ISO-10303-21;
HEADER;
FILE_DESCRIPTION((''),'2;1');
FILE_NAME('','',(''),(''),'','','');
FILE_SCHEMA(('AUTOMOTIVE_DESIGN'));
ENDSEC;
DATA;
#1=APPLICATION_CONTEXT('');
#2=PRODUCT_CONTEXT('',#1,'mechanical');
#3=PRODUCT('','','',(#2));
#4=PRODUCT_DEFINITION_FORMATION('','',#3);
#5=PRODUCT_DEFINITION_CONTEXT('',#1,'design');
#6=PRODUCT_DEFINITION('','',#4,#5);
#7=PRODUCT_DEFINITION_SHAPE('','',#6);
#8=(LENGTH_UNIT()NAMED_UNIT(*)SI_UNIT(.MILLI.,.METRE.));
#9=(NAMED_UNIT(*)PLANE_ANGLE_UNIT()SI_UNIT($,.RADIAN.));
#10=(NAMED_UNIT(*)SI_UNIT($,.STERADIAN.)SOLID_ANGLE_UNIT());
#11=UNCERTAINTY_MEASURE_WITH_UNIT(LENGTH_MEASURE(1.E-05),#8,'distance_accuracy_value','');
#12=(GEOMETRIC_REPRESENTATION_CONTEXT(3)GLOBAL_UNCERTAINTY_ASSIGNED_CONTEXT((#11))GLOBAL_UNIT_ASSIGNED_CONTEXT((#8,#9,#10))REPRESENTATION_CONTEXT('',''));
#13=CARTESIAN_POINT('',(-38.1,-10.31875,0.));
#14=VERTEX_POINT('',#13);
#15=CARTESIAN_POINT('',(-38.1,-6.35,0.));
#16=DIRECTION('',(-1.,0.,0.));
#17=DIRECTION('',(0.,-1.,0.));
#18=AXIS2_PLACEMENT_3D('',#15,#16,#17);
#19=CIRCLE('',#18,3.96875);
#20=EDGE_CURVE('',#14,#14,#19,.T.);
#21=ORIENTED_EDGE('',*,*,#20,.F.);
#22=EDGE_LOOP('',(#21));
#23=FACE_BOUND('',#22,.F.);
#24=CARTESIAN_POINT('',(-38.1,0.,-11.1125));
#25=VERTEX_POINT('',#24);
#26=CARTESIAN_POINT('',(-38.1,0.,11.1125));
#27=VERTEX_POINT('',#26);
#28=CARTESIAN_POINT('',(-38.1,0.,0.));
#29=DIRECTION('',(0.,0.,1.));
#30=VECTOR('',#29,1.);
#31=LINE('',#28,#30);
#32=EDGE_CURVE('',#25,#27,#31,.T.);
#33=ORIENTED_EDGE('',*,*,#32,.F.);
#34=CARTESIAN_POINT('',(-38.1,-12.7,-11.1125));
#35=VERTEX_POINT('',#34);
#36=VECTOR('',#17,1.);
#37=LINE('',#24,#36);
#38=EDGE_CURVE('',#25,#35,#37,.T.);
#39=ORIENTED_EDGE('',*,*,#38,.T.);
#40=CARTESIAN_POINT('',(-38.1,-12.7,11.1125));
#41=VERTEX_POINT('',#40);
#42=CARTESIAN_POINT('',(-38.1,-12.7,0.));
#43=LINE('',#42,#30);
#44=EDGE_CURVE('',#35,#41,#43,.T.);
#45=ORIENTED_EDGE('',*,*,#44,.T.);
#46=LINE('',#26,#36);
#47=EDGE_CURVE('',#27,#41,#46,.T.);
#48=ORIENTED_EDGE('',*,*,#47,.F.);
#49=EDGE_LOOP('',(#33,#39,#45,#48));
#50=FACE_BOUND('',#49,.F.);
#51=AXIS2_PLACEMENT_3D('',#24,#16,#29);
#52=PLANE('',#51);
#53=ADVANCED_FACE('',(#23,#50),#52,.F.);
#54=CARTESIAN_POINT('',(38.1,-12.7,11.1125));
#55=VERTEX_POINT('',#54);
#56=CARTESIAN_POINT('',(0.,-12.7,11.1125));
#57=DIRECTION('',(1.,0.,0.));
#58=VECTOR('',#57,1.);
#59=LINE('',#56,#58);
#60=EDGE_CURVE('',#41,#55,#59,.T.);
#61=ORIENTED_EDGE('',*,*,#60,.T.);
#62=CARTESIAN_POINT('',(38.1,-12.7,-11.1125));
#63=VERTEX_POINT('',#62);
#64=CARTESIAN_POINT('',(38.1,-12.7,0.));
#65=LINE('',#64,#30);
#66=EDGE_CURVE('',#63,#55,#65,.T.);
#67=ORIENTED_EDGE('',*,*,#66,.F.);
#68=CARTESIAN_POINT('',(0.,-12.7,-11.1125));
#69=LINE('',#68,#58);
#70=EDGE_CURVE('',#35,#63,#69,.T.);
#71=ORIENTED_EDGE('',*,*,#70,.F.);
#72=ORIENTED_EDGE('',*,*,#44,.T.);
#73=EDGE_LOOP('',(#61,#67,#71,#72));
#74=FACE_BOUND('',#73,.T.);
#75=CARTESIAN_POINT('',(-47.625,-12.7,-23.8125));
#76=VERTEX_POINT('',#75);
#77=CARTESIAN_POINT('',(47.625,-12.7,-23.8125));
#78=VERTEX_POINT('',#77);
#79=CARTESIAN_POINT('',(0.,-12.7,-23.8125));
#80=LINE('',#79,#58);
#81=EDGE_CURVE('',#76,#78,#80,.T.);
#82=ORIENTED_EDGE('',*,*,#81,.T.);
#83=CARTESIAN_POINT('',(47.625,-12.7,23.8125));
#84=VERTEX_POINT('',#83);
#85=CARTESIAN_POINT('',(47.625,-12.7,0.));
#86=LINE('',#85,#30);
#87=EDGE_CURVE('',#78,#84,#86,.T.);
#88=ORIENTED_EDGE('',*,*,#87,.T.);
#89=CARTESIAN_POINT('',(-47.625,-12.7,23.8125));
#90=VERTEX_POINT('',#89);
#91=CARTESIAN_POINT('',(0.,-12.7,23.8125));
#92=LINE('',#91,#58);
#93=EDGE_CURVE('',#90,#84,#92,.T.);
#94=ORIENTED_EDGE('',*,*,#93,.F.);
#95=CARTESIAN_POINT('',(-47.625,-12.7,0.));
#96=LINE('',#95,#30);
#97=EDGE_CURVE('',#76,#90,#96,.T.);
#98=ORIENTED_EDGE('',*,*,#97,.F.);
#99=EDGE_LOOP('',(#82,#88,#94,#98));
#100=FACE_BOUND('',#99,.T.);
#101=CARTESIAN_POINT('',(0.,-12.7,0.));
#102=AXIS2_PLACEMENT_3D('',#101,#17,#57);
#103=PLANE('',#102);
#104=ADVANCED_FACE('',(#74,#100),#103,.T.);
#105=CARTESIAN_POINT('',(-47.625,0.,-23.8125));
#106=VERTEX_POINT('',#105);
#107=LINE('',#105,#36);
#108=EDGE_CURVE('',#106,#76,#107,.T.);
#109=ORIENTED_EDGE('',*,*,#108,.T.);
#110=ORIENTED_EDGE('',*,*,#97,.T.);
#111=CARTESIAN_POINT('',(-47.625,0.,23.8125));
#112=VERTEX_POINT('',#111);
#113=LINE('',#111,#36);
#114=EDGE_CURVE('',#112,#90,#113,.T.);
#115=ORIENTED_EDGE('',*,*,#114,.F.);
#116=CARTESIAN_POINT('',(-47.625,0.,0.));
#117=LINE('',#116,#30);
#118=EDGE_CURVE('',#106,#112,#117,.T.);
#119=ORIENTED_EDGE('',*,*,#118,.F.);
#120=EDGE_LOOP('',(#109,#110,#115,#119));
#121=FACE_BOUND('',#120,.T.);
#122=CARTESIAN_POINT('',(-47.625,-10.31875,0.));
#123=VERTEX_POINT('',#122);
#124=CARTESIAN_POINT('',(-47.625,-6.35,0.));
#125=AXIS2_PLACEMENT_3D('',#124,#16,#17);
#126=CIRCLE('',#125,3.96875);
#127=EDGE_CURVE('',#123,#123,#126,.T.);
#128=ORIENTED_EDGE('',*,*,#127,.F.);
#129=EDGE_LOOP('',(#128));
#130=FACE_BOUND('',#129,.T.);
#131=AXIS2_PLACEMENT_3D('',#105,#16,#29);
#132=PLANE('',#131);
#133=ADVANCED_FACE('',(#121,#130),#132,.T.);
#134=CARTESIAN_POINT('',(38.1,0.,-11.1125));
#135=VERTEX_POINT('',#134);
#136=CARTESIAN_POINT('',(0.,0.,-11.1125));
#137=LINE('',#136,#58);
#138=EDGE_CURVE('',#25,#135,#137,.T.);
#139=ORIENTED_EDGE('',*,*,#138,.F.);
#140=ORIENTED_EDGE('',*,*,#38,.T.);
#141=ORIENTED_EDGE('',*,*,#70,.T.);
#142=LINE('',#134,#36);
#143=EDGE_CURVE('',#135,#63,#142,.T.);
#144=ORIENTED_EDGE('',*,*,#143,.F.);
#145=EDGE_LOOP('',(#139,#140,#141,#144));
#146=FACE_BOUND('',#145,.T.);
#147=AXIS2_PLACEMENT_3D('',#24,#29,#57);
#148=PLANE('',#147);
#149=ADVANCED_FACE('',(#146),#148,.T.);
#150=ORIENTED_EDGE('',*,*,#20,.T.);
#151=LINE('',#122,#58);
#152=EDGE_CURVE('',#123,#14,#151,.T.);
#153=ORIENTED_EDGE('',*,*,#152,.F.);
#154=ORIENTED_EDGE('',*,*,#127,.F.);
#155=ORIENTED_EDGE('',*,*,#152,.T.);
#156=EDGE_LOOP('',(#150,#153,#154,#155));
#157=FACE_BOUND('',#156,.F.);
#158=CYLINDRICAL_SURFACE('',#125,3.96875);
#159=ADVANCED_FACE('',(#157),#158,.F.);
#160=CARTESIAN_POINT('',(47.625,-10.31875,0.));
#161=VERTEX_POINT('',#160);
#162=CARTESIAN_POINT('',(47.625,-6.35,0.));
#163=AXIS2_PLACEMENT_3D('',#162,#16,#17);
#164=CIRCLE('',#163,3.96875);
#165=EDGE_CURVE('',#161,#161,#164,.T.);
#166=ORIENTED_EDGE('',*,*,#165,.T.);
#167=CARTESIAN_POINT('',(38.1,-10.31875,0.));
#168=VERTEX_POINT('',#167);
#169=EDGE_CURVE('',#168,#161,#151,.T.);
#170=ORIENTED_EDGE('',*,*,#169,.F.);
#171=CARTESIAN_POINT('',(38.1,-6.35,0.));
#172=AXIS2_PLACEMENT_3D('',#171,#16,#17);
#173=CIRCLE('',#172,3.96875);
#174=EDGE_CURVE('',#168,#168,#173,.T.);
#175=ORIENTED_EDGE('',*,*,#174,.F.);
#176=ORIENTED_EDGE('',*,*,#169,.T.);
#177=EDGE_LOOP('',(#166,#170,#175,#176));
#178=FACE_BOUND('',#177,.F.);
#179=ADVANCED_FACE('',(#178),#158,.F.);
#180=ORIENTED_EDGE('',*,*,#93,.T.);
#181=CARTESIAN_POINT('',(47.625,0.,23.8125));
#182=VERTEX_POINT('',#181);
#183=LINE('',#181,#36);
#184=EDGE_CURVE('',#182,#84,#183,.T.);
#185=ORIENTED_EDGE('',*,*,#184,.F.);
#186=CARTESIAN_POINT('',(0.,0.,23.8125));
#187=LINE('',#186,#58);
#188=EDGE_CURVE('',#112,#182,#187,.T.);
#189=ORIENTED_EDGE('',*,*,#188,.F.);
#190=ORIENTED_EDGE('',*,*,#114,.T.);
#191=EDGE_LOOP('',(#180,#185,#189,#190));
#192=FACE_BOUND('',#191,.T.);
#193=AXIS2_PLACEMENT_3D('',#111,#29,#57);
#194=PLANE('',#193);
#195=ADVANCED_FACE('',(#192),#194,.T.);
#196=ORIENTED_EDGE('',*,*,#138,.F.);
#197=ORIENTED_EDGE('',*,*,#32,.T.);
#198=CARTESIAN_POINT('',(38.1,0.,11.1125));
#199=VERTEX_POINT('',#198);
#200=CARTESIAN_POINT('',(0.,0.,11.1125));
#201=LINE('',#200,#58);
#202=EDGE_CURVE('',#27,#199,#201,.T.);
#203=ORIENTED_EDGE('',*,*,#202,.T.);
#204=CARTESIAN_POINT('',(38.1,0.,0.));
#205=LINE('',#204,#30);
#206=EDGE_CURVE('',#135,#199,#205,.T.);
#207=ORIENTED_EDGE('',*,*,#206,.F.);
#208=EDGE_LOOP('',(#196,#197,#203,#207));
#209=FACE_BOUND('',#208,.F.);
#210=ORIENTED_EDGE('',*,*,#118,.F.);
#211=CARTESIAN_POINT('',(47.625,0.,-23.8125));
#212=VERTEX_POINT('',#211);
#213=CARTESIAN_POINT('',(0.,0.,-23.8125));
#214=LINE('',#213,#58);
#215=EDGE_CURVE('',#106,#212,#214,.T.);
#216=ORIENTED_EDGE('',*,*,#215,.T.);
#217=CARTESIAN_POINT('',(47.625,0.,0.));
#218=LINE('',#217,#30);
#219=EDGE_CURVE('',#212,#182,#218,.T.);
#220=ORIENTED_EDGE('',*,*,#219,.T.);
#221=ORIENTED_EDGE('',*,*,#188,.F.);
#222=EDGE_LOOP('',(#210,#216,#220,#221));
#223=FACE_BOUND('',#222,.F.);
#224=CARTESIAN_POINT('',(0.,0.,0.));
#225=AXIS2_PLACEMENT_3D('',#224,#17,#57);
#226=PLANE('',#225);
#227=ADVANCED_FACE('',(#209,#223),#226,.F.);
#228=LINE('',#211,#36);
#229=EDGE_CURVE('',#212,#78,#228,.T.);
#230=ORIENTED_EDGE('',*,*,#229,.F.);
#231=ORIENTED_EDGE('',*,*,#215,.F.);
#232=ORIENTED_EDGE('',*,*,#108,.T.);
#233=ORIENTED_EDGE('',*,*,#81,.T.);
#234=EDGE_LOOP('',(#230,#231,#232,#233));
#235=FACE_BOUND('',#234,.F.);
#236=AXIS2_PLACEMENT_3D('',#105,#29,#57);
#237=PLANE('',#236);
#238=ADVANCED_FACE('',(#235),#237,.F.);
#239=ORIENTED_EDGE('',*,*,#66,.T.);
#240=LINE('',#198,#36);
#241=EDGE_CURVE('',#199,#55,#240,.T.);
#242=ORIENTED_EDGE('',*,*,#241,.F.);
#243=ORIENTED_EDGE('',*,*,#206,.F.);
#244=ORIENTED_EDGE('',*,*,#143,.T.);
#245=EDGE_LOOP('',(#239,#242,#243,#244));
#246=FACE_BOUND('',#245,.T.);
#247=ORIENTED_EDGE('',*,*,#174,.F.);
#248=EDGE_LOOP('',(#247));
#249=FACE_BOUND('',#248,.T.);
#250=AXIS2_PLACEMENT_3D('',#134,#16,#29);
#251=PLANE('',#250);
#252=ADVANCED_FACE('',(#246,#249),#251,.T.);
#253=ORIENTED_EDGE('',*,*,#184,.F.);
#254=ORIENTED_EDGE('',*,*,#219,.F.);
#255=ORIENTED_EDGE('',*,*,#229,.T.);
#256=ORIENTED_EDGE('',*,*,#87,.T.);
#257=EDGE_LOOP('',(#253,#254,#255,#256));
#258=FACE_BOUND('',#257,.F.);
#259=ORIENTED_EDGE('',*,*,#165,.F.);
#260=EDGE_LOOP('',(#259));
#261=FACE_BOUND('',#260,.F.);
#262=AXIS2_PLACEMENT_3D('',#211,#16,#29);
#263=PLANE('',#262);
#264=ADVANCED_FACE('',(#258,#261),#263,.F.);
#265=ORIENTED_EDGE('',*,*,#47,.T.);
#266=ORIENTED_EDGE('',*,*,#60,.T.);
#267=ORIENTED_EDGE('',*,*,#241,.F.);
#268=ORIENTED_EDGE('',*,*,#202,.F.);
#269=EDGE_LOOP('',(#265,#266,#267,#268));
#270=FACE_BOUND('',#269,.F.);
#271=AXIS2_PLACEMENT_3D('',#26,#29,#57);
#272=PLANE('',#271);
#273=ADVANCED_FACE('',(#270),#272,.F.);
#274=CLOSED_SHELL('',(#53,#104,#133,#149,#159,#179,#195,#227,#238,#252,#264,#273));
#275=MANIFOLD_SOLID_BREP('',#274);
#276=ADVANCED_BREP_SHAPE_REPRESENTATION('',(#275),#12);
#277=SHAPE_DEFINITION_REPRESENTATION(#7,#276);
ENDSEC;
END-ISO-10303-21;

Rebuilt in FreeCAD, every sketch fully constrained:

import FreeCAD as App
import Part
import Sketcher
from FreeCAD import Vector
Q = App.Units.Quantity


def add_polygon(sketch, points):
    """Adds a closed chain of lines whose ends are joined by coincident constraints."""
    first, n = sketch.GeometryCount, len(points)
    for a, b in zip(points, points[1:] + points[:1]):
        sketch.addGeometry(Part.LineSegment(App.Vector(*a, 0), App.Vector(*b, 0)), False)
    for i in range(n):
        sketch.addConstraint(Sketcher.Constraint("Coincident", first + i, 2, first + (i + 1) % n, 1))

doc = App.newDocument("Part")
body = doc.addObject("PartDesign::Body", "Body")

sketch1 = body.newObject("Sketcher::SketchObject", "Sketch")
sketch1.AttachmentSupport = (doc.getObject("XZ_Plane"), [""])
sketch1.MapMode = "FlatFace"
add_polygon(sketch1, [(-47.625, 23.8125), (-47.625, -23.8125), (47.625, -23.8125), (47.625, 23.8125)])
add_polygon(sketch1, [(38.1, -11.1125), (-38.1, -11.1125), (-38.1, 11.1125), (38.1, 11.1125)])
sketch1.addConstraint([
    Sketcher.Constraint("Vertical", 0),
    Sketcher.Constraint("Horizontal", 1),
    Sketcher.Constraint("Vertical", 2),
    Sketcher.Constraint("Horizontal", 3),
    Sketcher.Constraint("Horizontal", 4),
    Sketcher.Constraint("Vertical", 5),
    Sketcher.Constraint("Horizontal", 6),
    Sketcher.Constraint("Vertical", 7),
    Sketcher.Constraint("Symmetric", 0, 2, 2, 2, -1, 1),
    Sketcher.Constraint("Symmetric", 4, 2, 6, 2, -1, 1),
    Sketcher.Constraint("DistanceX", 4, 2, 4, 1, Q("3 in")),
    Sketcher.Constraint("DistanceX", 1, 1, 1, 2, Q("3.75 in")),
    Sketcher.Constraint("DistanceY", 0, 2, 4, 2, Q("0.5 in")),
    Sketcher.Constraint("DistanceY", 0, 2, 0, 1, Q("1.875 in")),
])
pad1 = body.newObject("PartDesign::Pad", "Pad")
pad1.Profile = sketch1
pad1.Length = Q("0.5 in")

sketch2 = body.newObject("Sketcher::SketchObject", "Sketch001")
sketch2.AttachmentSupport = (doc.getObject("YZ_Plane"), [""])
sketch2.MapMode = "FlatFace"
sketch2.AttachmentOffset = App.Placement(Vector(0, 0, -1.875 * 25.4), App.Rotation())
sketch2.addGeometry(Part.Circle(Vector(-6.35, 0, 0), Vector(0, 0, 1), 3.96875), False)
sketch2.addConstraint([
    Sketcher.Constraint("PointOnObject", 0, 3, -1),
    Sketcher.Constraint("Diameter", 0, Q("0.3125 in")),
    Sketcher.Constraint("DistanceX", 0, 3, -1, 1, Q("0.25 in")),
])
pocket1 = body.newObject("PartDesign::Pocket", "Pocket")
pocket1.Profile = sketch2
pocket1.Type = "ThroughAll"
pocket1.Reversed = True

doc.recompute()
